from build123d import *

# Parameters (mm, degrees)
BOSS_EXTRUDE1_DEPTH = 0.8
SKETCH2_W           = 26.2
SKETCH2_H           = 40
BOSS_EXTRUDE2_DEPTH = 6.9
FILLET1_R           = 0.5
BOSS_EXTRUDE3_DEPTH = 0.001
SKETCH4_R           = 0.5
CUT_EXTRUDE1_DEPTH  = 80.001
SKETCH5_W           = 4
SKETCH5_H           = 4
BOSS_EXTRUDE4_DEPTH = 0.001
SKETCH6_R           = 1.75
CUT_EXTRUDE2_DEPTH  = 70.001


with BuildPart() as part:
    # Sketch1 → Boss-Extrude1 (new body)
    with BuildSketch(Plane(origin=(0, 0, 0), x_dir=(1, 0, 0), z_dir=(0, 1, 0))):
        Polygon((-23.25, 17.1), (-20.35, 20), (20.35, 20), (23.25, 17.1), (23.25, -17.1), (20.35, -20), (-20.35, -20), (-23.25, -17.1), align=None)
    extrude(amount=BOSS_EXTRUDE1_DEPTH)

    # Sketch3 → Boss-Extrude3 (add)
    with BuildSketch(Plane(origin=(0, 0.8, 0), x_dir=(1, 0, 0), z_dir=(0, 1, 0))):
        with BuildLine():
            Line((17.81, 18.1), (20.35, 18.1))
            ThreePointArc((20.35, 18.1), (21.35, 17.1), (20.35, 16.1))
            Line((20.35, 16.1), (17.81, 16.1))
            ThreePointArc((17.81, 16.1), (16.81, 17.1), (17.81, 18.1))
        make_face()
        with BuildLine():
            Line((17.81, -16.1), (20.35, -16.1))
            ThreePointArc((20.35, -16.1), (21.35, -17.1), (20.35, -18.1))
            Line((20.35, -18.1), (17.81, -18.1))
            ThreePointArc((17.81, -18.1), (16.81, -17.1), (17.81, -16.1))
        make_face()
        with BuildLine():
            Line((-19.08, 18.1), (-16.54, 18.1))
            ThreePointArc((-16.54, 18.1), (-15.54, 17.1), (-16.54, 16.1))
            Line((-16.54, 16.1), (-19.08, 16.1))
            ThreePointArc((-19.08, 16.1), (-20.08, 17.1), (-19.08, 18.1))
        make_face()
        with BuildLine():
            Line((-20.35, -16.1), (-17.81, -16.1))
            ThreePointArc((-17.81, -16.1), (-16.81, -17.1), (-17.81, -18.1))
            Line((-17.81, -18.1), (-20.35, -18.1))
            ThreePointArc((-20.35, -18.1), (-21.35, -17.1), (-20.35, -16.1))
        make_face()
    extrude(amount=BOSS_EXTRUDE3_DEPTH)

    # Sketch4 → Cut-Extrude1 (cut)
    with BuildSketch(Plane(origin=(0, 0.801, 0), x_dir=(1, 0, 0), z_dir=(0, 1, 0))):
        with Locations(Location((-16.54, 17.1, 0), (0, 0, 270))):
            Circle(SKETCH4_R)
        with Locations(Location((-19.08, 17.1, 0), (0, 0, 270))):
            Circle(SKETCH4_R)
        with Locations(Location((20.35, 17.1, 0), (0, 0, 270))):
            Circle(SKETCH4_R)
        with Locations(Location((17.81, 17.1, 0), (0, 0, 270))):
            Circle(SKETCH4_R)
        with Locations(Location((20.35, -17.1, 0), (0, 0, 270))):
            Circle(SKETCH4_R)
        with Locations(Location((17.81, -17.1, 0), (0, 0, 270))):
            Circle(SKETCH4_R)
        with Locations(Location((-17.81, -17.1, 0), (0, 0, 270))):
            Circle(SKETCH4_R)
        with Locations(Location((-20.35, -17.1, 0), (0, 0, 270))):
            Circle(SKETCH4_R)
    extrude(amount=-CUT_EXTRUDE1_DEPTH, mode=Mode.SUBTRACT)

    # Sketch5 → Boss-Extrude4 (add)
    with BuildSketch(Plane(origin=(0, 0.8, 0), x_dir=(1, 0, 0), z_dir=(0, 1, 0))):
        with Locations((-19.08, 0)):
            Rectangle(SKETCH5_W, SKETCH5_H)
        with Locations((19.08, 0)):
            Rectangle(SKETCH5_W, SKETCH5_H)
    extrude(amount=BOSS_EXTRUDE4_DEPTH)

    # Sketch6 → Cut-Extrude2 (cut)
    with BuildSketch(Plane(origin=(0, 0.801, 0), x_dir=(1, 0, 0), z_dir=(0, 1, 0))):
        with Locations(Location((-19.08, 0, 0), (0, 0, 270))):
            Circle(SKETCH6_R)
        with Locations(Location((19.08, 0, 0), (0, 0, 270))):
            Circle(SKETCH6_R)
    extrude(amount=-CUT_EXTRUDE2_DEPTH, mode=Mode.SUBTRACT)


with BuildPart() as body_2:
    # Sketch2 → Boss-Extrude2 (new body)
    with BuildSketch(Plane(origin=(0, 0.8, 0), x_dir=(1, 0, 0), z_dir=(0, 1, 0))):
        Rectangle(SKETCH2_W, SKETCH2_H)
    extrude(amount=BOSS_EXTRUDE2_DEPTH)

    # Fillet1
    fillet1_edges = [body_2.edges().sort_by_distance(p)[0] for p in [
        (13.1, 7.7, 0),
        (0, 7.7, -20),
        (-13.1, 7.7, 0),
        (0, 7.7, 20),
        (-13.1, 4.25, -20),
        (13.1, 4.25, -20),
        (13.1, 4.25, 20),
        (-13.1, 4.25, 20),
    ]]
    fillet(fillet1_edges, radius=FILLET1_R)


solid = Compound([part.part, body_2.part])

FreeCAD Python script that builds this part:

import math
import FreeCAD as App
import Part
import Sketcher
from FreeCAD import Vector
Q = App.Units.Quantity


def edges_at(feature, points):
    """Names of the edges that pass closest to the given points."""
    edges = feature.Shape.Edges
    near = lambda p: min(range(len(edges)), key=lambda i: edges[i].distToShape(Part.Vertex(*p))[0])
    return sorted({f"Edge{near(p) + 1}" for p in points})


def add_polygon(sketch, points):
    """Adds a closed chain of lines whose ends are joined by coincident constraints."""
    first, n = sketch.GeometryCount, len(points)
    for a, b in zip(points, points[1:] + points[:1]):
        sketch.addGeometry(Part.LineSegment(App.Vector(*a, 0), App.Vector(*b, 0)), False)
    for i in range(n):
        sketch.addConstraint(Sketcher.Constraint("Coincident", first + i, 2, first + (i + 1) % n, 1))

doc = App.newDocument("Part")
params = doc.addObject("Spreadsheet::Sheet", "Params")
for row, (alias, value) in enumerate([
    ("sketch1_width", "40.7 mm"),
    ("sketch1_height", "34.2 mm"),
    ("pad1_length", "0.8 mm"),
    ("sketch2_radius", "1 mm"),
    ("sketch2_width", "2.54 mm"),
    ("pad2_length", "0.001 mm"),
    ("sketch3_diameter", "1 mm"),
    ("pocket1_length", "80.001 mm"),
    ("sketch4_width", "4 mm"),
    ("pad3_length", "0.001 mm"),
    ("sketch5_diameter", "3.5 mm"),
    ("pocket2_length", "70.001 mm"),
    ("sketch6_height", "40 mm"),
    ("sketch6_width", "26.2 mm"),
    ("pad4_length", "6.9 mm"),
    ("fillet_radius", "0.5 mm"),
], start=1):
    params.set(f"A{row}", alias)
    params.set(f"B{row}", "=" + value)
    params.setAlias(f"B{row}", alias)

body = doc.addObject("PartDesign::Body", "Body")

sketch1 = body.newObject("Sketcher::SketchObject", "Sketch")
sketch1.AttachmentSupport = (doc.getObject("XZ_Plane"), [""])
sketch1.MapMode = "FlatFace"
add_polygon(sketch1, [(-20.4, -20), (-23.2, -17.1), (-23.2, 17.1), (-20.4, 20), (20.4, 20), (23.2, 17.1), (23.2, -17.1), (20.4, -20)])
sketch1.addConstraint([
    Sketcher.Constraint("Vertical", 1),
    Sketcher.Constraint("Horizontal", 3),
    Sketcher.Constraint("Vertical", 5),
    Sketcher.Constraint("Horizontal", 7),
    Sketcher.Constraint("Symmetric", 0, 2, 4, 2, -1, 1),
    Sketcher.Constraint("Symmetric", 2, 2, 6, 2, -1, 1),
    Sketcher.Constraint("Perpendicular", 0, 2),
    Sketcher.Constraint("Perpendicular", 2, 4),
    Sketcher.Constraint("Perpendicular", 4, 6),
    Sketcher.Constraint("Horizontal", 1, 2, 4, 2),
    Sketcher.Constraint("Vertical", 3, 2, 6, 2),
    Sketcher.Constraint("DistanceX", 3, 1, 3, 2, Q("40.7 mm")),
    Sketcher.Constraint("DistanceY", 1, 1, 1, 2, Q("34.2 mm")),
    Sketcher.Constraint("DistanceY", -1, 1, 2, 2, Q("20 mm")),
])
sketch1.setExpression("Constraints[19]", "Params.sketch1_width")
sketch1.setExpression("Constraints[20]", "Params.sketch1_height")
pad1 = body.newObject("PartDesign::Pad", "Pad")
pad1.Profile = sketch1
pad1.setExpression("Length", "Params.pad1_length")
pad1.Reversed = True

sketch2 = body.newObject("Sketcher::SketchObject", "Sketch001")
sketch2.AttachmentSupport = (doc.getObject("XZ_Plane"), [""])
sketch2.MapMode = "FlatFace"
sketch2.AttachmentOffset = App.Placement(Vector(0, 0, -0.8), App.Rotation())
sketch2.addGeometry([
    Part.LineSegment(Vector(20.4, -18.1, 0), Vector(17.8, -18.1, 0)),
    Part.ArcOfCircle(Part.Circle(Vector(17.8, -17.1, 0), Vector(0, 0, 1), 1), math.radians(90), math.radians(270)),
    Part.LineSegment(Vector(17.8, -16.1, 0), Vector(20.4, -16.1, 0)),
    Part.ArcOfCircle(Part.Circle(Vector(20.4, -17.1, 0), Vector(0, 0, 1), 1), math.radians(-90), math.radians(90)),
    Part.LineSegment(Vector(20.4, 16.1, 0), Vector(17.8, 16.1, 0)),
    Part.ArcOfCircle(Part.Circle(Vector(17.8, 17.1, 0), Vector(0, 0, 1), 1), math.radians(90), math.radians(270)),
    Part.LineSegment(Vector(17.8, 18.1, 0), Vector(20.4, 18.1, 0)),
    Part.ArcOfCircle(Part.Circle(Vector(20.4, 17.1, 0), Vector(0, 0, 1), 1), math.radians(-90), math.radians(90)),
    Part.LineSegment(Vector(-16.5, -18.1, 0), Vector(-19.1, -18.1, 0)),
    Part.ArcOfCircle(Part.Circle(Vector(-19.1, -17.1, 0), Vector(0, 0, 1), 1), math.radians(90), math.radians(270)),
    Part.LineSegment(Vector(-19.1, -16.1, 0), Vector(-16.5, -16.1, 0)),
    Part.ArcOfCircle(Part.Circle(Vector(-16.5, -17.1, 0), Vector(0, 0, 1), 1), math.radians(-90), math.radians(90)),
    Part.LineSegment(Vector(-17.8, 16.1, 0), Vector(-20.4, 16.1, 0)),
    Part.ArcOfCircle(Part.Circle(Vector(-20.4, 17.1, 0), Vector(0, 0, 1), 1), math.radians(90), math.radians(270)),
    Part.LineSegment(Vector(-20.4, 18.1, 0), Vector(-17.8, 18.1, 0)),
    Part.ArcOfCircle(Part.Circle(Vector(-17.8, 17.1, 0), Vector(0, 0, 1), 1), math.radians(-90), math.radians(90)),
], False)
sketch2.addConstraint([
    Sketcher.Constraint("Tangent", 0, 2, 1, 2),
    Sketcher.Constraint("Tangent", 1, 1, 2, 1),
    Sketcher.Constraint("Tangent", 2, 2, 3, 2),
    Sketcher.Constraint("Tangent", 3, 1, 0, 1),
    Sketcher.Constraint("Tangent", 4, 2, 5, 2),
    Sketcher.Constraint("Tangent", 5, 1, 6, 1),
    Sketcher.Constraint("Tangent", 6, 2, 7, 2),
    Sketcher.Constraint("Tangent", 7, 1, 4, 1),
    Sketcher.Constraint("Tangent", 8, 2, 9, 2),
    Sketcher.Constraint("Tangent", 9, 1, 10, 1),
    Sketcher.Constraint("Tangent", 10, 2, 11, 2),
    Sketcher.Constraint("Tangent", 11, 1, 8, 1),
    Sketcher.Constraint("Tangent", 12, 2, 13, 2),
    Sketcher.Constraint("Tangent", 13, 1, 14, 1),
    Sketcher.Constraint("Tangent", 14, 2, 15, 2),
    Sketcher.Constraint("Tangent", 15, 1, 12, 1),
    Sketcher.Constraint("Horizontal", 0),
    Sketcher.Constraint("Horizontal", 2),
    Sketcher.Constraint("Horizontal", 4),
    Sketcher.Constraint("Horizontal", 6),
    Sketcher.Constraint("Horizontal", 8),
    Sketcher.Constraint("Horizontal", 10),
    Sketcher.Constraint("Horizontal", 12),
    Sketcher.Constraint("Horizontal", 14),
    Sketcher.Constraint("Equal", 3, 5),
    Sketcher.Constraint("Equal", 7, 9),
    Sketcher.Constraint("Equal", 11, 13),
    Sketcher.Constraint("Symmetric", 3, 3, 13, 3, -1, 1),
    Sketcher.Constraint("Symmetric", 7, 3, 13, 3, -2),
    Sketcher.Constraint("Horizontal", 3, 3, 9, 3),
    Sketcher.Constraint("Vertical", 1, 3, 5, 3),
    Sketcher.Constraint("Equal", 6, 8),
    Sketcher.Constraint("Equal", 10, 12),
    Sketcher.Constraint("Radius", 1, Q("1 mm")),
    Sketcher.Constraint("DistanceX", 0, 2, 0, 1, Q("2.54 mm")),
    Sketcher.Constraint("DistanceY", 1, 3, -1, 1, Q("17.1 mm")),
    Sketcher.Constraint("DistanceX", 13, 3, 7, 3, Q("40.7 mm")),
    Sketcher.Constraint("DistanceX", 9, 3, -1, 1, Q("19.08 mm")),
])
sketch2.setExpression("Constraints[33]", "Params.sketch2_radius")
sketch2.setExpression("Constraints[34]", "Params.sketch2_width")
pad2 = body.newObject("PartDesign::Pad", "Pad001")
pad2.Profile = sketch2
pad2.setExpression("Length", "Params.pad2_length")
pad2.Reversed = True

sketch3 = body.newObject("Sketcher::SketchObject", "Sketch002")
sketch3.AttachmentSupport = (doc.getObject("XZ_Plane"), [""])
sketch3.MapMode = "FlatFace"
sketch3.AttachmentOffset = App.Placement(Vector(0, 0, -0.801), App.Rotation())
sketch3.addGeometry([
    Part.Circle(Vector(-16.5, -17.1, 0), Vector(0, 0, 1), 0.5),
    Part.Circle(Vector(-19.1, -17.1, 0), Vector(0, 0, 1), 0.5),
    Part.Circle(Vector(20.4, -17.1, 0), Vector(0, 0, 1), 0.5),
    Part.Circle(Vector(17.8, -17.1, 0), Vector(0, 0, 1), 0.5),
    Part.Circle(Vector(20.4, 17.1, 0), Vector(0, 0, 1), 0.5),
    Part.Circle(Vector(17.8, 17.1, 0), Vector(0, 0, 1), 0.5),
    Part.Circle(Vector(-17.8, 17.1, 0), Vector(0, 0, 1), 0.5),
    Part.Circle(Vector(-20.4, 17.1, 0), Vector(0, 0, 1), 0.5),
], False)
sketch3.addConstraint([
    Sketcher.Constraint("Equal", 0, 1),
    Sketcher.Constraint("Equal", 1, 2),
    Sketcher.Constraint("Equal", 2, 3),
    Sketcher.Constraint("Equal", 3, 4),
    Sketcher.Constraint("Equal", 4, 5),
    Sketcher.Constraint("Equal", 5, 6),
    Sketcher.Constraint("Equal", 6, 7),
    Sketcher.Constraint("Symmetric", 3, 3, 6, 3, -1, 1),
    Sketcher.Constraint("Symmetric", 2, 3, 7, 3, -1, 1),
    Sketcher.Constraint("Symmetric", 5, 3, 6, 3, -2),
    Sketcher.Constraint("Symmetric", 4, 3, 7, 3, -2),
    Sketcher.Constraint("Horizontal", 0, 3, 1, 3),
    Sketcher.Constraint("Horizontal", 1, 3, 2, 3),
    Sketcher.Constraint("Horizontal", 2, 3, 3, 3),
    Sketcher.Constraint("Diameter", 0, Q("1 mm")),
    Sketcher.Constraint("DistanceY", 0, 3, -1, 1, Q("17.1 mm")),
    Sketcher.Constraint("DistanceX", 7, 3, 4, 3, Q("40.7 mm")),
    Sketcher.Constraint("DistanceX", 0, 3, -1, 1, Q("16.54 mm")),
    Sketcher.Constraint("DistanceX", 1, 3, -1, 1, Q("19.08 mm")),
    Sketcher.Constraint("DistanceX", -1, 1, 3, 3, Q("17.81 mm")),
])
sketch3.setExpression("Constraints[14]", "Params.sketch3_diameter")
pocket1 = body.newObject("PartDesign::Pocket", "Pocket")
pocket1.Profile = sketch3
pocket1.setExpression("Length", "Params.pocket1_length")
pocket1.Reversed = True

sketch4 = body.newObject("Sketcher::SketchObject", "Sketch003")
sketch4.AttachmentSupport = (doc.getObject("XZ_Plane"), [""])
sketch4.MapMode = "FlatFace"
sketch4.AttachmentOffset = App.Placement(Vector(0, 0, -0.8), App.Rotation())
add_polygon(sketch4, [(-21.1, -2), (-21.1, 2), (-17.1, 2), (-17.1, -2)])
add_polygon(sketch4, [(17.1, -2), (17.1, 2), (21.1, 2), (21.1, -2)])
sketch4.addConstraint([
    Sketcher.Constraint("Vertical", 0),
    Sketcher.Constraint("Horizontal", 1),
    Sketcher.Constraint("Vertical", 2),
    Sketcher.Constraint("Horizontal", 3),
    Sketcher.Constraint("Vertical", 4),
    Sketcher.Constraint("Horizontal", 5),
    Sketcher.Constraint("Vertical", 6),
    Sketcher.Constraint("Horizontal", 7),
    Sketcher.Constraint("Symmetric", 2, 2, 4, 2, -1, 1),
    Sketcher.Constraint("Symmetric", 0, 2, 6, 2, -1, 1),
    Sketcher.Constraint("Horizontal", 1, 2, 4, 2),
    Sketcher.Constraint("Equal", 7, 0),
    Sketcher.Constraint("DistanceX", 1, 1, 1, 2, Q("4 mm")),
    Sketcher.Constraint("DistanceX", 0, 2, -1, 1, Q("21.08 mm")),
])
sketch4.setExpression("Constraints[20]", "Params.sketch4_width")
pad3 = body.newObject("PartDesign::Pad", "Pad002")
pad3.Profile = sketch4
pad3.setExpression("Length", "Params.pad3_length")
pad3.Reversed = True

sketch5 = body.newObject("Sketcher::SketchObject", "Sketch004")
sketch5.AttachmentSupport = (doc.getObject("XZ_Plane"), [""])
sketch5.MapMode = "FlatFace"
sketch5.AttachmentOffset = App.Placement(Vector(0, 0, -0.801), App.Rotation())
sketch5.addGeometry([
    Part.Circle(Vector(-19.1, 0, 0), Vector(0, 0, 1), 1.8),
    Part.Circle(Vector(19.1, 0, 0), Vector(0, 0, 1), 1.8),
], False)
sketch5.addConstraint([
    Sketcher.Constraint("Equal", 0, 1),
    Sketcher.Constraint("Symmetric", 0, 3, 1, 3, -1, 1),
    Sketcher.Constraint("PointOnObject", 0, 3, -1),
    Sketcher.Constraint("Diameter", 0, Q("3.5 mm")),
    Sketcher.Constraint("DistanceX", 0, 3, -1, 1, Q("19.08 mm")),
])
sketch5.setExpression("Constraints[3]", "Params.sketch5_diameter")
pocket2 = body.newObject("PartDesign::Pocket", "Pocket001")
pocket2.Profile = sketch5
pocket2.setExpression("Length", "Params.pocket2_length")
pocket2.Reversed = True
body2 = doc.addObject("PartDesign::Body", "Body001")

sketch6 = body2.newObject("Sketcher::SketchObject", "Sketch005")
sketch6.AttachmentSupport = (doc.getObject("XZ_Plane001"), [""])
sketch6.MapMode = "FlatFace"
sketch6.AttachmentOffset = App.Placement(Vector(0, 0, -0.8), App.Rotation())
add_polygon(sketch6, [(-13, -20), (-13, 20), (13, 20), (13, -20)])
sketch6.addConstraint([
    Sketcher.Constraint("Vertical", 0),
    Sketcher.Constraint("Horizontal", 1),
    Sketcher.Constraint("Vertical", 2),
    Sketcher.Constraint("Horizontal", 3),
    Sketcher.Constraint("Symmetric", 0, 2, 2, 2, -1, 1),
    Sketcher.Constraint("DistanceY", 0, 1, 0, 2, Q("40 mm")),
    Sketcher.Constraint("DistanceX", 1, 1, 1, 2, Q("26.2 mm")),
])
sketch6.setExpression("Constraints[9]", "Params.sketch6_height")
sketch6.setExpression("Constraints[10]", "Params.sketch6_width")
pad4 = body2.newObject("PartDesign::Pad", "Pad003")
pad4.Profile = sketch6
pad4.setExpression("Length", "Params.pad4_length")
pad4.Reversed = True
doc.recompute()

fillet = body2.newObject("PartDesign::Fillet", "Fillet")
fillet.Base = (pad4, edges_at(pad4, [
    (13.1, 7.7, 0),
    (0, 7.7, -20),
    (-13.1, 7.7, 0),
    (0, 7.7, 20),
    (-13.1, 4.25, -20),
    (13.1, 4.25, -20),
    (13.1, 4.25, 20),
    (-13.1, 4.25, 20),
]))
fillet.setExpression("Radius", "Params.fillet_radius")

doc.recompute()
